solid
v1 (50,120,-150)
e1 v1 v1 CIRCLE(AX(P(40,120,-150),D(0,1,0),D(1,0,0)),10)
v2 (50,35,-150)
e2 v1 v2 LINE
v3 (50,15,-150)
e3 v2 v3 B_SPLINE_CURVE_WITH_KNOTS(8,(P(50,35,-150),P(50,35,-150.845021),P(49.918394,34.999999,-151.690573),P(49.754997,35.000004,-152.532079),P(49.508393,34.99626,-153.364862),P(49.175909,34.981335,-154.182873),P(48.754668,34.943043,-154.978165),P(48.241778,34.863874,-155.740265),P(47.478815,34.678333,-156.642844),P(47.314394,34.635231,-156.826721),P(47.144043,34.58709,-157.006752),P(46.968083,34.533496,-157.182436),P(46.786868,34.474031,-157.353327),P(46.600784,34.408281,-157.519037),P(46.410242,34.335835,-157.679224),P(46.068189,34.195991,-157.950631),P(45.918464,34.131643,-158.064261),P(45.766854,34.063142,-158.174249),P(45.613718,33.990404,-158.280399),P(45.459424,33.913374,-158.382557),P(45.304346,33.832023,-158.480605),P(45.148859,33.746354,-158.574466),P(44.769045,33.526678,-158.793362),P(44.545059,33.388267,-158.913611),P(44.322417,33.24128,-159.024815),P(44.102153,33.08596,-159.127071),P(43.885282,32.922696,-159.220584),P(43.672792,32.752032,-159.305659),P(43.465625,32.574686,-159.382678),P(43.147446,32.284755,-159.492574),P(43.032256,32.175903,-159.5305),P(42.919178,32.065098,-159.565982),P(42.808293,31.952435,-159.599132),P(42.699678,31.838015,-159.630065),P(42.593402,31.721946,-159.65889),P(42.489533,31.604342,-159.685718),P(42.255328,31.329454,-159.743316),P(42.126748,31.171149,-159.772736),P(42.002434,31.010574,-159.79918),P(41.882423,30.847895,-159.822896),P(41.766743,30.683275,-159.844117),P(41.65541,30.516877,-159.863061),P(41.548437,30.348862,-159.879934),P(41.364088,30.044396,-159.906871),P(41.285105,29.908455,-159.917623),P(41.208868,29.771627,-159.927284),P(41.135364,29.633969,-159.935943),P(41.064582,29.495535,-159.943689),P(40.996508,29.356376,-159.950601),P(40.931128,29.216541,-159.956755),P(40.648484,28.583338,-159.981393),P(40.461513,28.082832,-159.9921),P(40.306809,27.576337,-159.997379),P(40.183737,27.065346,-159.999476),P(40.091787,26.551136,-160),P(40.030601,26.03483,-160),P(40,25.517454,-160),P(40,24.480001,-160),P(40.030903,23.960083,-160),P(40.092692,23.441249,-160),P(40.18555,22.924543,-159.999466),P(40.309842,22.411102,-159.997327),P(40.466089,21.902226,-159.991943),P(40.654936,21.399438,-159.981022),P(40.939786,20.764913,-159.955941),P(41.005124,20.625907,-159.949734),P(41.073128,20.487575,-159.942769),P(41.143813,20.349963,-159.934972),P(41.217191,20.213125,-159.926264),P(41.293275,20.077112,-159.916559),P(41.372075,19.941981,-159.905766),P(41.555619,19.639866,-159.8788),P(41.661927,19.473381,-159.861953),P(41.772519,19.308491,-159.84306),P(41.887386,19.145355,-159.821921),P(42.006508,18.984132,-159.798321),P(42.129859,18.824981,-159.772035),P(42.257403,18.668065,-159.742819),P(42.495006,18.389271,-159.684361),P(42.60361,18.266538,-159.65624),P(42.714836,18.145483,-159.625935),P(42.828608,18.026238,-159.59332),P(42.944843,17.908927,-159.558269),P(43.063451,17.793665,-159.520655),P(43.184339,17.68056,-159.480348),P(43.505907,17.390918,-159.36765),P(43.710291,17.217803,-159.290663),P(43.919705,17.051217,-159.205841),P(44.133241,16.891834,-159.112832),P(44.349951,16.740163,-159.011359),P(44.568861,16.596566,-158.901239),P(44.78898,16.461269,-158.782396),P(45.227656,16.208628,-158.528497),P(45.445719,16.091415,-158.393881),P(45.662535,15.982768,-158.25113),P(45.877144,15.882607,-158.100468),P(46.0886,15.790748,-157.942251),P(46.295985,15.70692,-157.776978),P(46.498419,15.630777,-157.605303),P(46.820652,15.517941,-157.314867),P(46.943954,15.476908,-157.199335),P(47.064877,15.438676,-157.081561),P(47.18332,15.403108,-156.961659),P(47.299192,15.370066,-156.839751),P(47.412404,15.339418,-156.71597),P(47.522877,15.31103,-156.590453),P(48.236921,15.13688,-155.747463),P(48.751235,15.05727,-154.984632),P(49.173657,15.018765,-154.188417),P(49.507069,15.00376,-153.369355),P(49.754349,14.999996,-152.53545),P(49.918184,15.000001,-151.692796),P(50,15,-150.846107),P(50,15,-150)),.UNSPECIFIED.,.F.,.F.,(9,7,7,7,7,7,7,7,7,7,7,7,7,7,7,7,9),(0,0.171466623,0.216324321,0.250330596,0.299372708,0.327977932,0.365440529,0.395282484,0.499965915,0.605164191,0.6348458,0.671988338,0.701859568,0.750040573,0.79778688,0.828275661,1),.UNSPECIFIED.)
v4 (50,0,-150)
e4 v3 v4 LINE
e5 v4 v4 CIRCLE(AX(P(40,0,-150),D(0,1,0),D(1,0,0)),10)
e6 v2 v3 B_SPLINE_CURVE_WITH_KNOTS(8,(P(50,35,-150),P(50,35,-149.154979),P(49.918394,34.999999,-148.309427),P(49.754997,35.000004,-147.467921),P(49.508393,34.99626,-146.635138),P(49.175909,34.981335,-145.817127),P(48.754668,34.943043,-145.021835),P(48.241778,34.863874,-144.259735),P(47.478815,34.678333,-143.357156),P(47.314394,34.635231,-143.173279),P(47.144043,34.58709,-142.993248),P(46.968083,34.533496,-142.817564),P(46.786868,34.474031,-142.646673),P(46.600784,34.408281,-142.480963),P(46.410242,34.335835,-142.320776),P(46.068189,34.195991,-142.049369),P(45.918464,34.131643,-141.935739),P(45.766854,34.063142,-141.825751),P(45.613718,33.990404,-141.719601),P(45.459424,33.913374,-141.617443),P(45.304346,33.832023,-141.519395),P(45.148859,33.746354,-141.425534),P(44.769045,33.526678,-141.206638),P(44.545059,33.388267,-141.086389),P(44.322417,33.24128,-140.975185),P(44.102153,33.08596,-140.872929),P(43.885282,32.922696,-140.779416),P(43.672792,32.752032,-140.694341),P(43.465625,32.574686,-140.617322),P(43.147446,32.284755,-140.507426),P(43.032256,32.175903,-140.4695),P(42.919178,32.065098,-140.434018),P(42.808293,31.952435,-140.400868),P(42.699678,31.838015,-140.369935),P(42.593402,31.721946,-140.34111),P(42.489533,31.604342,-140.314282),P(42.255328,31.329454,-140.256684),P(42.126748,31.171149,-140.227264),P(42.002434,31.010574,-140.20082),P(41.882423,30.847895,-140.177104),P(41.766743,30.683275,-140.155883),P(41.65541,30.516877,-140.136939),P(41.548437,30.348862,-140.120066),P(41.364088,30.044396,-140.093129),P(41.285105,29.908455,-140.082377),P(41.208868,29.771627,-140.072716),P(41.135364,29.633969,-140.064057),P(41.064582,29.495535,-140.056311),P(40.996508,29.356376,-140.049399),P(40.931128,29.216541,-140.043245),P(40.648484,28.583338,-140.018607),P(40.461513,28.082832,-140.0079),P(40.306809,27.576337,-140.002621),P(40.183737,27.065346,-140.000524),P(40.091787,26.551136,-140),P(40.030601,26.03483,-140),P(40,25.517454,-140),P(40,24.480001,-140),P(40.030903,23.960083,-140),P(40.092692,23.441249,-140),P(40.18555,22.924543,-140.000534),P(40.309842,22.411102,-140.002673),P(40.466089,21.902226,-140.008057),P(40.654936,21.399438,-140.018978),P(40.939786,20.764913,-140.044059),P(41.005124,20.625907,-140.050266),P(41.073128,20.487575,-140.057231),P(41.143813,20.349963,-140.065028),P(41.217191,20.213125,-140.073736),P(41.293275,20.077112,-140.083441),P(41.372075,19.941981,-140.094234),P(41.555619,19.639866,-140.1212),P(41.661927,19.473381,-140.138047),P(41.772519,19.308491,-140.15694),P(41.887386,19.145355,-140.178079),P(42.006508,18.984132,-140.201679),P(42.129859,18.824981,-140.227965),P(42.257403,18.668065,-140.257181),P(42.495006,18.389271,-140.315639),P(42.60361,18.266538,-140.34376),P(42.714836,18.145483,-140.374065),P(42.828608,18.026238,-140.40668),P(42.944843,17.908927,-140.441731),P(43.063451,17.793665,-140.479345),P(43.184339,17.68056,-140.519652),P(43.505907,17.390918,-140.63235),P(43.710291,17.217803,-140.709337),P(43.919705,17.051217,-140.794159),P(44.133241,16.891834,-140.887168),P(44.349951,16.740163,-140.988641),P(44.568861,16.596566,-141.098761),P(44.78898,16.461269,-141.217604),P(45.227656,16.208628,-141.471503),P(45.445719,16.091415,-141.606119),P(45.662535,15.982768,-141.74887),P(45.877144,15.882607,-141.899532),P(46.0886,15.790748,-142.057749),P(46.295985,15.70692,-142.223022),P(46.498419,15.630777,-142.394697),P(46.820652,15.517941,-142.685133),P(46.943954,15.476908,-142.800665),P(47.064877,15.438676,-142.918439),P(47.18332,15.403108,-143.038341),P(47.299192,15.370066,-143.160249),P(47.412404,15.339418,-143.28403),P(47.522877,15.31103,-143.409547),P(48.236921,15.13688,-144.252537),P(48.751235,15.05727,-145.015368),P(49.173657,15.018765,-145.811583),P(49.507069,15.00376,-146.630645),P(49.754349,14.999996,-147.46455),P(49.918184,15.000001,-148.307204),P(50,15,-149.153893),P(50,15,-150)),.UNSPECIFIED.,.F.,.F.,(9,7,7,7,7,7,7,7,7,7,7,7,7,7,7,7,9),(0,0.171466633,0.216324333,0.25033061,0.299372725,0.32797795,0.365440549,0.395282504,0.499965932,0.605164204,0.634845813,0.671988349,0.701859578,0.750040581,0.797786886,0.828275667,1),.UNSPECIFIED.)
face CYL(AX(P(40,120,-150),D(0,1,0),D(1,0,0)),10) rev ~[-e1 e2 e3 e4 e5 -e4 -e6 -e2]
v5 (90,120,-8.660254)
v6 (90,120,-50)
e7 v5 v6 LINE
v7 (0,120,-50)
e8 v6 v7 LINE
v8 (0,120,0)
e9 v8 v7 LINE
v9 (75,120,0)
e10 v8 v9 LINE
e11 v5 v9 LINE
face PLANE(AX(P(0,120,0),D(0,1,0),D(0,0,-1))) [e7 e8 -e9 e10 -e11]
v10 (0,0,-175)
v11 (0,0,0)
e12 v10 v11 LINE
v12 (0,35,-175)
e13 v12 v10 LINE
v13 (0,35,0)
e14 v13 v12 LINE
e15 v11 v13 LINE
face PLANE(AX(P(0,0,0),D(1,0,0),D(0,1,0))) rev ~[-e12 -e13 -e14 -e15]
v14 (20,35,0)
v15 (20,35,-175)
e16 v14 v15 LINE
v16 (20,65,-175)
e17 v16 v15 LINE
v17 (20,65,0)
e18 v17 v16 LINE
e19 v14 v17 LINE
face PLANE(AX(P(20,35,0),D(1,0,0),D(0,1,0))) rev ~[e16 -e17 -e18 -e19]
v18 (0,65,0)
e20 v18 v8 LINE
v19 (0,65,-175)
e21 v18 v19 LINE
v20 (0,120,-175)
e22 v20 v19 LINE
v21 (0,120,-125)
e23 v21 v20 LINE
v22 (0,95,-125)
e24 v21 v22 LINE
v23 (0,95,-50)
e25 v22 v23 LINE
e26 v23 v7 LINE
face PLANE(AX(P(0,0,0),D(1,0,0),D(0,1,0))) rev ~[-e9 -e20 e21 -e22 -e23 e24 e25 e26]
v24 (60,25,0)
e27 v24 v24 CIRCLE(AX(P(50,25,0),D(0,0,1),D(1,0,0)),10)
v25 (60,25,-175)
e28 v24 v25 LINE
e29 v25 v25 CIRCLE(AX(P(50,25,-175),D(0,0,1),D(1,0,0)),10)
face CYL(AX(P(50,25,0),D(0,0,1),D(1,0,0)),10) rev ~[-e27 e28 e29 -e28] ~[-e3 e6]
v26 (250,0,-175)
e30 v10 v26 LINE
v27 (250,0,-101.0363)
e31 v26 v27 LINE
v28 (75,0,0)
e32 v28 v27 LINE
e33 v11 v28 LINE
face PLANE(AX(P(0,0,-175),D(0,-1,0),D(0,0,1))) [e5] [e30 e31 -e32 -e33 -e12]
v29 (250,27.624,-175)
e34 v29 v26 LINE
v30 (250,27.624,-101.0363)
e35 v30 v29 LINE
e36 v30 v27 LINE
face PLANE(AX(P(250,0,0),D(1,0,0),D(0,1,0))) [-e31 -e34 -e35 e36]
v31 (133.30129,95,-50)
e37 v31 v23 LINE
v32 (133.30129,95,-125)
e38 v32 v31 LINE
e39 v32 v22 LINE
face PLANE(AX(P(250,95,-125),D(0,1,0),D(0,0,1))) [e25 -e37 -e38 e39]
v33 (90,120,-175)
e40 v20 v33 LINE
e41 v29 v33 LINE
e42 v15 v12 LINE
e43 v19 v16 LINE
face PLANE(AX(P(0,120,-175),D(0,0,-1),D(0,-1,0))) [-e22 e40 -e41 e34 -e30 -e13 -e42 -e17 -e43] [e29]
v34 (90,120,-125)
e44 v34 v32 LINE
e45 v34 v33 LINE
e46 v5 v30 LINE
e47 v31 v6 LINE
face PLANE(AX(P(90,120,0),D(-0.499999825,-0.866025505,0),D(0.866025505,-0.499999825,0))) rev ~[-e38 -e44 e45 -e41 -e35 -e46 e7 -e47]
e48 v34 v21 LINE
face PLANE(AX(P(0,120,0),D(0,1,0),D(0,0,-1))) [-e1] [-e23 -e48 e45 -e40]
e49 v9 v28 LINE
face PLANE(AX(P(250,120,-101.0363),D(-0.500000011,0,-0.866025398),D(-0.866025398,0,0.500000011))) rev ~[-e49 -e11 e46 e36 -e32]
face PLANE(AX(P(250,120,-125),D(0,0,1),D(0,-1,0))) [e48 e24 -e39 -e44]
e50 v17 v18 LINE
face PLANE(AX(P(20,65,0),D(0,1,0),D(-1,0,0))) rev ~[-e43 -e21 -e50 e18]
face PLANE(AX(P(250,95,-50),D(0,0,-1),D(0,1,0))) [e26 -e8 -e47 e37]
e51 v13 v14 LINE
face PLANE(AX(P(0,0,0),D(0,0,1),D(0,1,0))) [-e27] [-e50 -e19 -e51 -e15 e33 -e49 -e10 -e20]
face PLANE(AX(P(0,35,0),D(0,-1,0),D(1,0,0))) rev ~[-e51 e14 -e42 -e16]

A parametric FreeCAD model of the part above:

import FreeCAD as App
import Part
import Sketcher
Q = App.Units.Quantity


def add_polygon(sketch, points):
    """Adds a closed chain of lines whose ends are joined by coincident constraints."""
    first, n = sketch.GeometryCount, len(points)
    for a, b in zip(points, points[1:] + points[:1]):
        sketch.addGeometry(Part.LineSegment(App.Vector(*a, 0), App.Vector(*b, 0)), False)
    for i in range(n):
        sketch.addConstraint(Sketcher.Constraint("Coincident", first + i, 2, first + (i + 1) % n, 1))

doc = App.newDocument("Part")
body = doc.addObject("PartDesign::Body", "Body")

# Sketch on YZ plane
sketch1 = body.newObject("Sketcher::SketchObject", "Sketch")
sketch1.AttachmentSupport = (doc.getObject("YZ_Plane"), [""])
sketch1.MapMode = "FlatFace"
add_polygon(sketch1, [(120, 0), (0, 0), (0, -175), (120, -175)])  # lines 0-3
sketch1.addConstraint([
    Sketcher.Constraint("Horizontal", 0),
    Sketcher.Constraint("Vertical", 1),
    Sketcher.Constraint("Horizontal", 2),
    Sketcher.Constraint("Vertical", 3),
    Sketcher.Constraint("Coincident", 0, 2, -1, 1),
    Sketcher.Constraint("DistanceX", 0, 2, 0, 1, Q("120 mm")),
    Sketcher.Constraint("DistanceY", 1, 2, 1, 1, Q("175 mm")),
])
pad1 = body.newObject("PartDesign::Pad", "Pad")
pad1.Profile = sketch1
pad1.Length = 250

# Sketch on YZ plane
sketch2 = body.newObject("Sketcher::SketchObject", "Sketch001")
sketch2.AttachmentSupport = (doc.getObject("YZ_Plane"), [""])
sketch2.MapMode = "FlatFace"
sketch2.AttachmentOffset = App.Placement(App.Vector(0, 0, 250), App.Rotation())
add_polygon(sketch2, [(95, -125), (120, -125), (120, -50), (95, -50)])  # lines 0-3
sketch2.addConstraint([
    Sketcher.Constraint("Horizontal", 0),
    Sketcher.Constraint("Vertical", 1),
    Sketcher.Constraint("Horizontal", 2),
    Sketcher.Constraint("Vertical", 3),
    Sketcher.Constraint("DistanceX", 0, 1, 0, 2, Q("25 mm")),
    Sketcher.Constraint("DistanceY", 1, 1, 1, 2, Q("75 mm")),
    Sketcher.Constraint("DistanceY", 1, 2, -1, 1, Q("50 mm")),
    Sketcher.Constraint("DistanceX", -1, 1, 0, 2, Q("120 mm")),
])
pocket1 = body.newObject("PartDesign::Pocket", "Pocket")
pocket1.Profile = sketch2
pocket1.Type = "ThroughAll"

# Sketch on XY plane
sketch3 = body.newObject("Sketcher::SketchObject", "Sketch002")
sketch3.AttachmentSupport = (doc.getObject("XY_Plane"), [""])
sketch3.MapMode = "FlatFace"
add_polygon(sketch3, [(20, 65), (0, 65), (0, 35), (20, 35)])  # lines 0-3
add_polygon(sketch3, [(250, 120), (90, 120), (250, 27.624)])  # lines 4-6
sketch3.addGeometry(Part.Circle(App.Vector(50, 25, 0), App.Vector(0, 0, 1), 10), False)  # 7
sketch3.addConstraint([
    Sketcher.Constraint("Horizontal", 0),
    Sketcher.Constraint("Vertical", 1),
    Sketcher.Constraint("Horizontal", 2),
    Sketcher.Constraint("Vertical", 3),
    Sketcher.Constraint("Horizontal", 4),
    Sketcher.Constraint("Vertical", 6),
    Sketcher.Constraint("PointOnObject", 0, 2, -2),
    Sketcher.Constraint("Diameter", 7, Q("20 mm")),
    Sketcher.Constraint("DistanceX", 0, 2, 0, 1, Q("20 mm")),
    Sketcher.Constraint("DistanceY", 1, 2, 1, 1, Q("30 mm")),
    Sketcher.Constraint("Angle", 5, Q("-30 deg")),
    Sketcher.Constraint("DistanceX", -1, 1, 7, 3, Q("50 mm")),
    Sketcher.Constraint("DistanceY", -1, 1, 7, 3, Q("25 mm")),
    Sketcher.Constraint("DistanceY", -1, 1, 1, 2, Q("35 mm")),
    Sketcher.Constraint("DistanceX", -1, 1, 4, 2, Q("90 mm")),
    Sketcher.Constraint("DistanceX", 4, 2, 4, 1, Q("160 mm")),
    Sketcher.Constraint("DistanceY", -1, 1, 4, 2, Q("120 mm")),
])
pocket2 = body.newObject("PartDesign::Pocket", "Pocket001")
pocket2.Profile = sketch3
pocket2.Type = "ThroughAll"

# Sketch on XZ plane
sketch4 = body.newObject("Sketcher::SketchObject", "Sketch003")
sketch4.AttachmentSupport = (doc.getObject("XZ_Plane"), [""])
sketch4.MapMode = "FlatFace"
sketch4.AttachmentOffset = App.Placement(App.Vector(0, 0, -120), App.Rotation())
sketch4.addGeometry(Part.Circle(App.Vector(40, -150, 0), App.Vector(0, 0, 1), 10), False)  # 0
add_polygon(sketch4, [(250, 0), (250, -101.0363), (75, 0)])  # lines 1-3
sketch4.addConstraint([
    Sketcher.Constraint("Vertical", 1),
    Sketcher.Constraint("Horizontal", 3),
    Sketcher.Constraint("PointOnObject", 2, 2, -1),
    Sketcher.Constraint("Diameter", 0, Q("20 mm")),
    Sketcher.Constraint("DistanceX", -1, 1, 0, 3, Q("40 mm")),
    Sketcher.Constraint("DistanceX", -1, 1, 2, 2, Q("75 mm")),
    Sketcher.Constraint("DistanceX", 3, 1, 3, 2, Q("175 mm")),
    Sketcher.Constraint("Angle", 2, Q("150 deg")),
    Sketcher.Constraint("DistanceY", 0, 3, -1, 1, Q("150 mm")),
])
pocket3 = body.newObject("PartDesign::Pocket", "Pocket002")
pocket3.Profile = sketch4
pocket3.Type = "ThroughAll"
pocket3.Reversed = True

doc.recompute()
